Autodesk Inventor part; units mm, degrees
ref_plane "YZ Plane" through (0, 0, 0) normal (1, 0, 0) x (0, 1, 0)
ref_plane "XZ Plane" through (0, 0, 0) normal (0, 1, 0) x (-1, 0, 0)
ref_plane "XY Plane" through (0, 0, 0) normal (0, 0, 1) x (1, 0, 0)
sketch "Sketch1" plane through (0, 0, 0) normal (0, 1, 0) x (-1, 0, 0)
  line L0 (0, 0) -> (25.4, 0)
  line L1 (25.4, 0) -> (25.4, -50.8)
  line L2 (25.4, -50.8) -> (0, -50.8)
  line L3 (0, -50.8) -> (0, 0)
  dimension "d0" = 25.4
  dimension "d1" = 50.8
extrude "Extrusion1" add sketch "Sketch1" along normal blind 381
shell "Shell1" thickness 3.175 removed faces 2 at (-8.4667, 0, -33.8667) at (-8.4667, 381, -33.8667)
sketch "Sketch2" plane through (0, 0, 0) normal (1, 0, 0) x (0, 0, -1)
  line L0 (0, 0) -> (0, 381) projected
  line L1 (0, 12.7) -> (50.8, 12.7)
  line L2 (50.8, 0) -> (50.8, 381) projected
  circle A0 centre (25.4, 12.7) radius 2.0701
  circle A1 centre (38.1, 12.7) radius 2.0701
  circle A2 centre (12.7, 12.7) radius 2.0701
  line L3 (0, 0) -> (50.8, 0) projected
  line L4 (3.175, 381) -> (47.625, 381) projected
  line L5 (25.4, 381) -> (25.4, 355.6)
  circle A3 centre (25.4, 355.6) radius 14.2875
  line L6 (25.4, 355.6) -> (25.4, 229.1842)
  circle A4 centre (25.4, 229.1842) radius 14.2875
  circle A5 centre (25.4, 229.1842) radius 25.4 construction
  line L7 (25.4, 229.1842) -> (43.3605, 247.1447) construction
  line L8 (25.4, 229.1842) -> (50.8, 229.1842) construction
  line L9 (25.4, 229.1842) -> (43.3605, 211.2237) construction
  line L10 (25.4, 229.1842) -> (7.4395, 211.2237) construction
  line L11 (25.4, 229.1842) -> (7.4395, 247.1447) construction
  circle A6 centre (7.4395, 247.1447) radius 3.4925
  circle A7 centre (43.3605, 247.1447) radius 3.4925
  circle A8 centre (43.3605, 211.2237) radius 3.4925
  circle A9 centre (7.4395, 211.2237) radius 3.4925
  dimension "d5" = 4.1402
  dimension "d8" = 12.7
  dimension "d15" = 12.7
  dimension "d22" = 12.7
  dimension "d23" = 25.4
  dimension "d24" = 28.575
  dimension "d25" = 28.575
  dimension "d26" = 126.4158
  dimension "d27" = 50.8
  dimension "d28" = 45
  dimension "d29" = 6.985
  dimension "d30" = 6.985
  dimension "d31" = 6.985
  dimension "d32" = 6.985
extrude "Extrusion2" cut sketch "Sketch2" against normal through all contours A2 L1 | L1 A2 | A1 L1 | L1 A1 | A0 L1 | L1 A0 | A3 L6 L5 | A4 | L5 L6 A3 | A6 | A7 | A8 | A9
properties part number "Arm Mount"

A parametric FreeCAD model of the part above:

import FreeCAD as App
import Part
import Sketcher

V = App.Vector
Q = App.Units.Quantity


def faces_at(feature, points):
    """Names of the faces that lie closest to the given points."""
    faces = feature.Shape.Faces
    near = lambda p: min(range(len(faces)), key=lambda i: faces[i].distToShape(Part.Vertex(*p))[0])
    return sorted({f"Face{near(p) + 1}" for p in points})


def add_polygon(sketch, points):
    """Adds a closed chain of lines whose ends are joined by coincident constraints."""
    first, n = sketch.GeometryCount, len(points)
    for a, b in zip(points, points[1:] + points[:1]):
        sketch.addGeometry(Part.LineSegment(App.Vector(*a, 0), App.Vector(*b, 0)), False)
    for i in range(n):
        sketch.addConstraint(Sketcher.Constraint("Coincident", first + i, 2, first + (i + 1) % n, 1))

doc = App.newDocument("Part")
body = doc.addObject("PartDesign::Body", "Body")

# Sketch on XZ plane
sketch1 = body.newObject("Sketcher::SketchObject", "Sketch")
sketch1.AttachmentSupport = (doc.getObject("XZ_Plane"), [""])
sketch1.MapMode = "FlatFace"
add_polygon(sketch1, [(-25.4, 0), (0, 0), (0, -50.8), (-25.4, -50.8)])  # lines 0-3
sketch1.addConstraint([
    Sketcher.Constraint("Horizontal", 0),
    Sketcher.Constraint("Vertical", 1),
    Sketcher.Constraint("Horizontal", 2),
    Sketcher.Constraint("Vertical", 3),
    Sketcher.Constraint("Coincident", 0, 2, -1, 1),
    Sketcher.Constraint("DistanceX", 0, 1, 0, 2, Q("1 in")),
    Sketcher.Constraint("DistanceY", 1, 2, 1, 1, Q("2 in")),
])
pad1 = body.newObject("PartDesign::Pad", "Pad")
pad1.Profile = sketch1
pad1.Length = Q("15 in")
pad1.Reversed = True
doc.recompute()

thickness = body.newObject("PartDesign::Thickness", "Thickness")
thickness.Base = (pad1, faces_at(pad1, [(-8.467, 0, -33.867), (-8.467, 381, -33.867)]))
thickness.Value = Q("0.125 in")
thickness.Reversed = True
thickness.Join = "Intersection"

# Sketch on YZ plane
sketch2 = body.newObject("Sketcher::SketchObject", "Sketch001")
sketch2.AttachmentSupport = (doc.getObject("YZ_Plane"), [""])
sketch2.MapMode = "FlatFace"
sketch2.addGeometry([
    Part.Circle(V(12.7, -12.7, 0), V(0, 0, 1), 2.0701),  # 0
    Part.Circle(V(12.7, -38.1, 0), V(0, 0, 1), 2.0701),  # 1
    Part.Circle(V(12.7, -25.4, 0), V(0, 0, 1), 2.0701),  # 2
    Part.Circle(V(355.6, -25.4, 0), V(0, 0, 1), 14.2875),  # 3
    Part.Circle(V(229.1842, -25.4, 0), V(0, 0, 1), 14.2875),  # 4
    Part.Circle(V(247.1447, -7.4395, 0), V(0, 0, 1), 3.4925),  # 5
    Part.Circle(V(247.1447, -43.3605, 0), V(0, 0, 1), 3.4925),  # 6
    Part.Circle(V(211.2237, -43.3605, 0), V(0, 0, 1), 3.4925),  # 7
    Part.Circle(V(211.2237, -7.4395, 0), V(0, 0, 1), 3.4925),  # 8
], False)
sketch2.addConstraint([
    Sketcher.Constraint("Equal", 0, 1),
    Sketcher.Constraint("Equal", 1, 2),
    Sketcher.Constraint("Equal", 3, 4),
    Sketcher.Constraint("Equal", 5, 6),
    Sketcher.Constraint("Equal", 6, 7),
    Sketcher.Constraint("Equal", 7, 8),
    Sketcher.Constraint("Horizontal", 2, 3, 3, 3),
    Sketcher.Constraint("Horizontal", 3, 3, 4, 3),
    Sketcher.Constraint("Horizontal", 6, 3, 7, 3),
    Sketcher.Constraint("Horizontal", 5, 3, 8, 3),
    Sketcher.Constraint("Vertical", 0, 3, 1, 3),
    Sketcher.Constraint("Vertical", 1, 3, 2, 3),
    Sketcher.Constraint("Vertical", 5, 3, 6, 3),
    Sketcher.Constraint("Vertical", 7, 3, 8, 3),
    Sketcher.Constraint("Diameter", 0, Q("0.163 in")),
    Sketcher.Constraint("Diameter", 3, Q("1.125 in")),
    Sketcher.Constraint("Diameter", 5, Q("0.275 in")),
    Sketcher.Constraint("DistanceY", 2, 3, -1, 1, Q("1 in")),
    Sketcher.Constraint("DistanceY", 1, 3, 0, 3, Q("1 in")),
    Sketcher.Constraint("DistanceX", -1, 1, 0, 3, Q("0.5 in")),
    Sketcher.Constraint("DistanceY", 0, 3, -1, 1, Q("0.5 in")),
    Sketcher.Constraint("DistanceX", -1, 1, 3, 3, Q("14 in")),
    Sketcher.Constraint("DistanceX", 4, 3, 3, 3, Q("4.977 in")),
    Sketcher.Constraint("DistanceX", -1, 1, 5, 3, Q("9.7301 in")),
    Sketcher.Constraint("DistanceY", 5, 3, -1, 1, Q("0.2929 in")),
    Sketcher.Constraint("DistanceY", 6, 3, -1, 1, Q("1.7071 in")),
    Sketcher.Constraint("DistanceX", -1, 1, 7, 3, Q("8.3159 in")),
])
pocket1 = body.newObject("PartDesign::Pocket", "Pocket")
pocket1.Profile = sketch2
pocket1.Type = "ThroughAll"

doc.recompute()
